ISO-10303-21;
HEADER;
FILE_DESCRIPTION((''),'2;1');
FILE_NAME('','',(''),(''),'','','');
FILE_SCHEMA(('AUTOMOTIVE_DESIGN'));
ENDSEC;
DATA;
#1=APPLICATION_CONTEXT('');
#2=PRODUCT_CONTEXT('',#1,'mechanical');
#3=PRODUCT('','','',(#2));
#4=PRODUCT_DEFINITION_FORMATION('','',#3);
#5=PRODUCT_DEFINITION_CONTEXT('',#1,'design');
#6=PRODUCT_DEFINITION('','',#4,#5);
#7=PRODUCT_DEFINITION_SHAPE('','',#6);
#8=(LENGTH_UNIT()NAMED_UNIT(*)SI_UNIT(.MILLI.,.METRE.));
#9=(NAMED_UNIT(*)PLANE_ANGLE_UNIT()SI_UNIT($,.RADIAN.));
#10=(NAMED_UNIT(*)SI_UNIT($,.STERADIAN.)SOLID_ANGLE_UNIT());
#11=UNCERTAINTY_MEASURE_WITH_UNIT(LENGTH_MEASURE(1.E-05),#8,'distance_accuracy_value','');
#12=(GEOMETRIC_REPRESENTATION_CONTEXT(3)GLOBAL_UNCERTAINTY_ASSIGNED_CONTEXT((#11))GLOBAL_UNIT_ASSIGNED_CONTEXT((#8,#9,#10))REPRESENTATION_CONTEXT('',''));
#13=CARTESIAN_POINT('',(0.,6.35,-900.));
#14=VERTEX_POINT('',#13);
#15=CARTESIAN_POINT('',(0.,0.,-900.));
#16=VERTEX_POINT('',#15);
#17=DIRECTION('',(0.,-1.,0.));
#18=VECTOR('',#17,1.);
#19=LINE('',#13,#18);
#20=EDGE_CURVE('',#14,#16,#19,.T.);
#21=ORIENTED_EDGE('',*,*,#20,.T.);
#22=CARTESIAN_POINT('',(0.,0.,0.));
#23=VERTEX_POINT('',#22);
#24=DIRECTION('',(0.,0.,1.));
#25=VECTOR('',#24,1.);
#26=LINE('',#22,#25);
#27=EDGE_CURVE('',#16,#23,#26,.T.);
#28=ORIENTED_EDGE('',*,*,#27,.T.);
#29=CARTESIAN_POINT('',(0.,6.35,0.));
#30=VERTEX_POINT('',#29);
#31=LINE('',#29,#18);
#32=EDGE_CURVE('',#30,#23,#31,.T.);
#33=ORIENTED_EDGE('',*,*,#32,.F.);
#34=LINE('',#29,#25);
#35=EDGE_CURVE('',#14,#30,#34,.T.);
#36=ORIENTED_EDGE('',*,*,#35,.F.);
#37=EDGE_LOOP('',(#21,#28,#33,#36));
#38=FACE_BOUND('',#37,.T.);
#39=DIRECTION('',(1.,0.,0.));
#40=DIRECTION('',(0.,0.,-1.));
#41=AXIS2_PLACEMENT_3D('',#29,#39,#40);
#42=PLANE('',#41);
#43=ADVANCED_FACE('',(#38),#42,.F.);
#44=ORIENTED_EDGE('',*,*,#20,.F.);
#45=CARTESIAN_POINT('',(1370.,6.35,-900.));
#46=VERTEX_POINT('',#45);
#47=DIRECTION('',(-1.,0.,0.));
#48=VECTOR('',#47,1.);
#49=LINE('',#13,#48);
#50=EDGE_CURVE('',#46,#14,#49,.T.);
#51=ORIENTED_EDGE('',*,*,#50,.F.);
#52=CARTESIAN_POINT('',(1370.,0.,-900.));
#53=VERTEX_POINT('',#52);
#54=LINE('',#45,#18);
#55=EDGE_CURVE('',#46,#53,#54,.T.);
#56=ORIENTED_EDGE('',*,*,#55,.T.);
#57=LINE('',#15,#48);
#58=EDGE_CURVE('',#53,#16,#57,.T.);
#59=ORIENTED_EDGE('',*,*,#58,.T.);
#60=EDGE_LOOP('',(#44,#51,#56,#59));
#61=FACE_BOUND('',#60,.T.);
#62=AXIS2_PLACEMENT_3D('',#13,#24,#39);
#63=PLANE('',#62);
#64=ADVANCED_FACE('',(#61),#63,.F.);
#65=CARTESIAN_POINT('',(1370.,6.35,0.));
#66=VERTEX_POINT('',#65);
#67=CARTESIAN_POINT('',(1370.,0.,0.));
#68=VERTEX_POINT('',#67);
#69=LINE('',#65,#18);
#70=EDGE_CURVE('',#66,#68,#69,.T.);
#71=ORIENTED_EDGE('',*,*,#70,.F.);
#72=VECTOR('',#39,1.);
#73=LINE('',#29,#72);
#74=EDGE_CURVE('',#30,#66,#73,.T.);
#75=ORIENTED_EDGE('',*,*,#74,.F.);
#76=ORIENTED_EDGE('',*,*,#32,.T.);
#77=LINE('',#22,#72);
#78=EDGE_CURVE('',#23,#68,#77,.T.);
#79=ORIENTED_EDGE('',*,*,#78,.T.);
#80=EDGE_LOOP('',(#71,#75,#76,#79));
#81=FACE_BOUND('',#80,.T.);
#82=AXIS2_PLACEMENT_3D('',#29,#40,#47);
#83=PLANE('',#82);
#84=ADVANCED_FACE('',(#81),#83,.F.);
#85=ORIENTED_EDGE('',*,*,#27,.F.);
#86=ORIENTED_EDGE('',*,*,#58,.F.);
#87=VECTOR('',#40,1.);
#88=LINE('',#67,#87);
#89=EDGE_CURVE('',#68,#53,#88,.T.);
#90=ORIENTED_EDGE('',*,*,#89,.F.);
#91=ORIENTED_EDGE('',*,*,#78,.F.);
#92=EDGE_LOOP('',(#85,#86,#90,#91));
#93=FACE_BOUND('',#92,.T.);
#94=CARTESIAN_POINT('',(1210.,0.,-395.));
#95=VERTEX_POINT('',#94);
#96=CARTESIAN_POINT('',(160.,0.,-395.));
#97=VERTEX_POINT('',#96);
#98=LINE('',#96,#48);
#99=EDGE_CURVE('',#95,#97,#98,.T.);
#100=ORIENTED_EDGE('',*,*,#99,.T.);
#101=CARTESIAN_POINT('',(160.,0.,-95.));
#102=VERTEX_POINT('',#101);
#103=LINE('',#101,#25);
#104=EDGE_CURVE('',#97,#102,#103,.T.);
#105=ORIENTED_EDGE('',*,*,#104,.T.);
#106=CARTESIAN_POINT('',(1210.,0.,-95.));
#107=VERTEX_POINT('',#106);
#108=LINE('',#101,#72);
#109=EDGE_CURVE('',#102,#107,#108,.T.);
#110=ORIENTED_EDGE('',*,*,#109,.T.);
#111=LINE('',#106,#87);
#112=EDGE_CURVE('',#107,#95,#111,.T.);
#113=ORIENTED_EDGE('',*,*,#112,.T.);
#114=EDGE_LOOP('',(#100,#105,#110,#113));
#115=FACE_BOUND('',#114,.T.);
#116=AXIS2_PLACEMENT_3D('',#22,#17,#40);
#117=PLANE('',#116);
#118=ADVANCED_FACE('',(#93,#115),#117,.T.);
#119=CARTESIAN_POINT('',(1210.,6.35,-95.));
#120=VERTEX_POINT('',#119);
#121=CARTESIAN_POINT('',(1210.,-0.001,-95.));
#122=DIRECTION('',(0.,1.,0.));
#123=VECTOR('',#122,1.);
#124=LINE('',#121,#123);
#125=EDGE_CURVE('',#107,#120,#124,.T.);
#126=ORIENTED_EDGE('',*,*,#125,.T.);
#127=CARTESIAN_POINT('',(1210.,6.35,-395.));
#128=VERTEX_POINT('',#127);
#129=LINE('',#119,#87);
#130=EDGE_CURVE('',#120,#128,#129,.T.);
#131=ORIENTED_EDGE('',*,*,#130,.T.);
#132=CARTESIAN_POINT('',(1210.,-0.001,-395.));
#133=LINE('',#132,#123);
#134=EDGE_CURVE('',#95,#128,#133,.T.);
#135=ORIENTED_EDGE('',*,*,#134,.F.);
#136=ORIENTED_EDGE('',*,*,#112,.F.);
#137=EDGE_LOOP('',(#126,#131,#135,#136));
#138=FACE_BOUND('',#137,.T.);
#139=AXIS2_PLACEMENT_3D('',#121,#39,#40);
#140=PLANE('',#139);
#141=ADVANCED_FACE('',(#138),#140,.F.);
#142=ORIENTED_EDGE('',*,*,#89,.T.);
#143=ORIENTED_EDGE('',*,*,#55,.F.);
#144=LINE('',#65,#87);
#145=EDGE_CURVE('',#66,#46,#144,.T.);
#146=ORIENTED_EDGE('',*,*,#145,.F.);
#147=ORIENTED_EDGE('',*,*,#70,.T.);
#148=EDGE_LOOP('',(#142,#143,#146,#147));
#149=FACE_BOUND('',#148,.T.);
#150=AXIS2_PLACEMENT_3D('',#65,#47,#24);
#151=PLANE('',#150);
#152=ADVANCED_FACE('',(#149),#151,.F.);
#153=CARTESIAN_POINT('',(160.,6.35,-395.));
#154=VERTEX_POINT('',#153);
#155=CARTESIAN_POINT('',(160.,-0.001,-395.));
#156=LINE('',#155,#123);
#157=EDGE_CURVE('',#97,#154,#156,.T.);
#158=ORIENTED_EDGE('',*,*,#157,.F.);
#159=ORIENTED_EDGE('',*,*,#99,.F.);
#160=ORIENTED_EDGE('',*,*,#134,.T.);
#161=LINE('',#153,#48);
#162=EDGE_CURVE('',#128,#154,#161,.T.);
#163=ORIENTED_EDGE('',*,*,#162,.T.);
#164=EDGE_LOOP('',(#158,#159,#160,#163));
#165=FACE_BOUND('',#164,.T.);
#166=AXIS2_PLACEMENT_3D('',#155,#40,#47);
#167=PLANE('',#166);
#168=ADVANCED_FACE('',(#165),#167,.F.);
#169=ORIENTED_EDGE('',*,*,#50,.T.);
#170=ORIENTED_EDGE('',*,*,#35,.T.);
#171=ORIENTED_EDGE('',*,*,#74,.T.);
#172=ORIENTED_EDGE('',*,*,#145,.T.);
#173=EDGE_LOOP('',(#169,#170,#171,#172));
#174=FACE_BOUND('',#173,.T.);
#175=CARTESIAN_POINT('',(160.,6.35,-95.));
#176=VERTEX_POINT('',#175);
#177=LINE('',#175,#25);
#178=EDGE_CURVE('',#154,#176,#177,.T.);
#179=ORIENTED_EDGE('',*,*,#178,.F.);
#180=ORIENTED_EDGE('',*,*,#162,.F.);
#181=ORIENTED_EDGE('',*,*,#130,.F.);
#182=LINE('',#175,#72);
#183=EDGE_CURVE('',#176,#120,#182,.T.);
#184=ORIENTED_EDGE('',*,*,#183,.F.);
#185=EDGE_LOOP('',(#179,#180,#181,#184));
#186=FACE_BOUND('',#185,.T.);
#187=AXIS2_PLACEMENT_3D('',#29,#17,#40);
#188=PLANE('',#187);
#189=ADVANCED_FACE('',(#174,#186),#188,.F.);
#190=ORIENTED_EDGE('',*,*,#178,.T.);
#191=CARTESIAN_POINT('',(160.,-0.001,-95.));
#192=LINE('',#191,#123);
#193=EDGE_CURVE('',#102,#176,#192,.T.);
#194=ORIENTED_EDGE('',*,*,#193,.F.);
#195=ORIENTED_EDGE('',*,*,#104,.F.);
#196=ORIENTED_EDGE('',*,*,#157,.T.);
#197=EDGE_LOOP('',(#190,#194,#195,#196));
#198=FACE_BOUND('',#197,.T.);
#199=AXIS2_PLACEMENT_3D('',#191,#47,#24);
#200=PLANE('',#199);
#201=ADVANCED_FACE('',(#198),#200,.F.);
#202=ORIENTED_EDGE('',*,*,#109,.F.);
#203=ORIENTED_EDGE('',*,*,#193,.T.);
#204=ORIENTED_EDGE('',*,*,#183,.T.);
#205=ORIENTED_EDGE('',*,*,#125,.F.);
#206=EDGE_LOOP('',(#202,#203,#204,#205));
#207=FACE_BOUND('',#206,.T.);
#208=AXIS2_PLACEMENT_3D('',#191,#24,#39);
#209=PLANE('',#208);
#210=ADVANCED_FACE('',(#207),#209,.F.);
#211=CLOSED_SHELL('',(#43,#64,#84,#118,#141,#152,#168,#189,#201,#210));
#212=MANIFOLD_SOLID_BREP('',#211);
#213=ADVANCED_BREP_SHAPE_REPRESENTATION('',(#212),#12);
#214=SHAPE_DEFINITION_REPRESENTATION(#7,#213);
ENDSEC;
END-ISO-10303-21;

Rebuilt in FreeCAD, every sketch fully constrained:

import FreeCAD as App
import Part
import Sketcher
Q = App.Units.Quantity


def add_polygon(sketch, points):
    """Adds a closed chain of lines whose ends are joined by coincident constraints."""
    first, n = sketch.GeometryCount, len(points)
    for a, b in zip(points, points[1:] + points[:1]):
        sketch.addGeometry(Part.LineSegment(App.Vector(*a, 0), App.Vector(*b, 0)), False)
    for i in range(n):
        sketch.addConstraint(Sketcher.Constraint("Coincident", first + i, 2, first + (i + 1) % n, 1))

doc = App.newDocument("Part")
body = doc.addObject("PartDesign::Body", "Body")

sketch1 = body.newObject("Sketcher::SketchObject", "Sketch")
sketch1.AttachmentSupport = (doc.getObject("XZ_Plane"), [""])
sketch1.MapMode = "FlatFace"
add_polygon(sketch1, [(0, -900), (0, 0), (1370, 0), (1370, -900)])
sketch1.addConstraint(Sketcher.Constraint("Vertical", 0))
sketch1.addConstraint(Sketcher.Constraint("Horizontal", 1))
sketch1.addConstraint(Sketcher.Constraint("Vertical", 2))
sketch1.addConstraint(Sketcher.Constraint("Horizontal", 3))
sketch1.addConstraint(Sketcher.Constraint("Coincident", 0, 2, -1, 1))
sketch1.addConstraint(Sketcher.Constraint("DistanceX", 1, 1, 1, 2, Q("1370 mm")))
sketch1.addConstraint(Sketcher.Constraint("DistanceY", 0, 1, 0, 2, Q("900 mm")))
pad1 = body.newObject("PartDesign::Pad", "Pad")
pad1.Profile = sketch1
pad1.Length = 6.35
pad1.Reversed = True

sketch2 = body.newObject("Sketcher::SketchObject", "Sketch001")
sketch2.AttachmentSupport = (doc.getObject("XZ_Plane"), [""])
sketch2.MapMode = "FlatFace"
sketch2.AttachmentOffset = App.Placement(App.Vector(0, 0, -6.35), App.Rotation())
add_polygon(sketch2, [(160, -395), (160, -95), (1210, -95), (1210, -395)])
sketch2.addConstraint(Sketcher.Constraint("Vertical", 0))
sketch2.addConstraint(Sketcher.Constraint("Horizontal", 1))
sketch2.addConstraint(Sketcher.Constraint("Vertical", 2))
sketch2.addConstraint(Sketcher.Constraint("Horizontal", 3))
sketch2.addConstraint(Sketcher.Constraint("DistanceX", 1, 1, 1, 2, Q("1050 mm")))
sketch2.addConstraint(Sketcher.Constraint("DistanceY", 0, 1, 0, 2, Q("300 mm")))
sketch2.addConstraint(Sketcher.Constraint("DistanceX", -1, 1, 0, 2, Q("160 mm")))
sketch2.addConstraint(Sketcher.Constraint("DistanceY", 0, 2, -1, 1, Q("95 mm")))
pocket1 = body.newObject("PartDesign::Pocket", "Pocket")
pocket1.Profile = sketch2
pocket1.Type = "UpToFirst"
pocket1.Reversed = True

doc.recompute()
